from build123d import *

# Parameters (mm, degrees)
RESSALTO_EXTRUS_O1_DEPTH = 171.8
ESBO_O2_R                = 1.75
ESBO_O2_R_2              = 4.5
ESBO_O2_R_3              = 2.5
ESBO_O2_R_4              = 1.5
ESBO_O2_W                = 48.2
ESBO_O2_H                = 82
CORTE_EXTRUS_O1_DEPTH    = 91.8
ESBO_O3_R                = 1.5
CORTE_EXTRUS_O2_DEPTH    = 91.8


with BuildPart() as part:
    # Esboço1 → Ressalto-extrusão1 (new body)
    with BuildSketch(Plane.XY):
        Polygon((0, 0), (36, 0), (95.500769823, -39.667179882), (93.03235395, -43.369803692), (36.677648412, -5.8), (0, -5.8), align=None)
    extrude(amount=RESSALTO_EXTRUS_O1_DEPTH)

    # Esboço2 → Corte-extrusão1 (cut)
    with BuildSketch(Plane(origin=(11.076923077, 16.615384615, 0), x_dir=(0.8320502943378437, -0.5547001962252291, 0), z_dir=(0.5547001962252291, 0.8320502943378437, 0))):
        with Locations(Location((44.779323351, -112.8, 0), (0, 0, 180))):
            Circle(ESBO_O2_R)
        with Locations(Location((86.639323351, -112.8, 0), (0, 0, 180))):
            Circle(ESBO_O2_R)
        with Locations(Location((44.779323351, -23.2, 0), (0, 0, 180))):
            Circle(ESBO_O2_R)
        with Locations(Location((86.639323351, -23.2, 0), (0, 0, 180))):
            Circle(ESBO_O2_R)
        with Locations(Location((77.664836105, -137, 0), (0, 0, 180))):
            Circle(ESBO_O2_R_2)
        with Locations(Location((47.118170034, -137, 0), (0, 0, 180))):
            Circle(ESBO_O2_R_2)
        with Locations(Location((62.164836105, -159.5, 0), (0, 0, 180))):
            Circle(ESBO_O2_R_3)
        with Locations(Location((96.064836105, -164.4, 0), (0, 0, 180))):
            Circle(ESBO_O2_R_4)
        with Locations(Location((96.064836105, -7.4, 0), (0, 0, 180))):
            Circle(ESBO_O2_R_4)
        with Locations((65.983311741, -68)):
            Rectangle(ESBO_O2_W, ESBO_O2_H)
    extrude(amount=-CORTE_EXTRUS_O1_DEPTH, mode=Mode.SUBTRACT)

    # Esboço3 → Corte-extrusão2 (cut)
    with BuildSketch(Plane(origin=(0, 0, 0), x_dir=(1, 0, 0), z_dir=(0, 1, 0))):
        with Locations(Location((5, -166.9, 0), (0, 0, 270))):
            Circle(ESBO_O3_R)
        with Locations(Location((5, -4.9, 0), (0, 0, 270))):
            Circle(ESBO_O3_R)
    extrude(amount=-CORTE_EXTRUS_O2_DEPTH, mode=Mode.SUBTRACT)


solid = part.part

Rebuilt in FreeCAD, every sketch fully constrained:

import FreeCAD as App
import Part
import Sketcher
from FreeCAD import Vector
Q = App.Units.Quantity

doc = App.newDocument("Part")
body = doc.addObject("PartDesign::Body", "Body")

# Sketch on XY plane
sketch1 = doc.addObject("Sketcher::SketchObject", "Sketch")
body.addObject(sketch1)
sketch1.AttachmentSupport = (doc.XY_Plane, [""])
sketch1.MapMode = "FlatFace"
sketch1.addGeometry(Part.LineSegment(Vector(36, 0, 0), Vector(0, 0, 0)), False)
sketch1.addGeometry(Part.LineSegment(Vector(0, 0, 0), Vector(0, -5.8, 0)), False)
sketch1.addGeometry(Part.LineSegment(Vector(0, -5.8, 0), Vector(36.7, -5.8, 0)), False)
sketch1.addGeometry(Part.LineSegment(Vector(36.7, -5.8, 0), Vector(93, -43.4, 0)), False)
sketch1.addGeometry(Part.LineSegment(Vector(93, -43.4, 0), Vector(95.5, -39.7, 0)), False)
sketch1.addGeometry(Part.LineSegment(Vector(95.5, -39.7, 0), Vector(36, 0, 0)), False)
sketch1.addConstraint(Sketcher.Constraint("Coincident", 0, 2, 1, 1))
sketch1.addConstraint(Sketcher.Constraint("Coincident", 1, 2, 2, 1))
sketch1.addConstraint(Sketcher.Constraint("Coincident", 2, 2, 3, 1))
sketch1.addConstraint(Sketcher.Constraint("Coincident", 3, 2, 4, 1))
sketch1.addConstraint(Sketcher.Constraint("Coincident", 4, 2, 5, 1))
sketch1.addConstraint(Sketcher.Constraint("Coincident", 5, 2, 0, 1))
sketch1.addConstraint(Sketcher.Constraint("Horizontal", 0))
sketch1.addConstraint(Sketcher.Constraint("Vertical", 1))
sketch1.addConstraint(Sketcher.Constraint("Horizontal", 2))
sketch1.addConstraint(Sketcher.Constraint("Coincident", 0, 2, -1, 1))
sketch1.addConstraint(Sketcher.Constraint("Perpendicular", 3, 4))
sketch1.addConstraint(Sketcher.Constraint("Perpendicular", 4, 5))
sketch1.addConstraint(Sketcher.Constraint("DistanceX", 0, 2, 0, 1, Q("36 mm")))
sketch1.addConstraint(Sketcher.Constraint("DistanceY", 1, 2, 1, 1, Q("5.8 mm")))
sketch1.addConstraint(Sketcher.Constraint("Distance", 4, Q("4.45 mm")))
sketch1.addConstraint(Sketcher.Constraint("DistanceX", 2, 1, 2, 2, Q("36.677648 mm")))
sketch1.addConstraint(Sketcher.Constraint("DistanceX", -1, 1, 4, 2, Q("95.50077 mm")))
pad1 = doc.addObject("PartDesign::Pad", "Pad")
body.addObject(pad1)
pad1.Profile = sketch1
pad1.Length = 171.8

# Sketch on an angled plane
sketch2 = doc.addObject("Sketcher::SketchObject", "Sketch001")
body.addObject(sketch2)
sketch2.Placement = App.Placement(Vector(11.076923, 16.615385, 0), App.Rotation(Vector(0.832050294, -0.554700196, 0), Vector(0, 0, -0.999999999), Vector(0.554700196, 0.832050294, 0), "ZXY"))
sketch2.addGeometry(Part.Circle(Vector(44.8, -112.8, 0), Vector(0, 0, 1), 1.8), False)
sketch2.addGeometry(Part.Circle(Vector(86.6, -112.8, 0), Vector(0, 0, 1), 1.8), False)
sketch2.addGeometry(Part.Circle(Vector(44.8, -23.2, 0), Vector(0, 0, 1), 1.8), False)
sketch2.addGeometry(Part.Circle(Vector(86.6, -23.2, 0), Vector(0, 0, 1), 1.8), False)
sketch2.addGeometry(Part.Circle(Vector(77.7, -137, 0), Vector(0, 0, 1), 4.5), False)
sketch2.addGeometry(Part.Circle(Vector(47.1, -137, 0), Vector(0, 0, 1), 4.5), False)
sketch2.addGeometry(Part.Circle(Vector(62.2, -159.5, 0), Vector(0, 0, 1), 2.5), False)
sketch2.addGeometry(Part.Circle(Vector(96.1, -164.4, 0), Vector(0, 0, 1), 1.5), False)
sketch2.addGeometry(Part.Circle(Vector(96.1, -7.4, 0), Vector(0, 0, 1), 1.5), False)
sketch2.addGeometry(Part.LineSegment(Vector(41.9, -27, 0), Vector(41.9, -109, 0)), False)
sketch2.addGeometry(Part.LineSegment(Vector(41.9, -109, 0), Vector(90.1, -109, 0)), False)
sketch2.addGeometry(Part.LineSegment(Vector(90.1, -109, 0), Vector(90.1, -27, 0)), False)
sketch2.addGeometry(Part.LineSegment(Vector(90.1, -27, 0), Vector(41.9, -27, 0)), False)
sketch2.addConstraint(Sketcher.Constraint("Coincident", 9, 2, 10, 1))
sketch2.addConstraint(Sketcher.Constraint("Coincident", 10, 2, 11, 1))
sketch2.addConstraint(Sketcher.Constraint("Coincident", 11, 2, 12, 1))
sketch2.addConstraint(Sketcher.Constraint("Coincident", 12, 2, 9, 1))
sketch2.addConstraint(Sketcher.Constraint("Vertical", 9))
sketch2.addConstraint(Sketcher.Constraint("Horizontal", 10))
sketch2.addConstraint(Sketcher.Constraint("Vertical", 11))
sketch2.addConstraint(Sketcher.Constraint("Horizontal", 12))
sketch2.addConstraint(Sketcher.Constraint("Equal", 0, 1))
sketch2.addConstraint(Sketcher.Constraint("Equal", 1, 2))
sketch2.addConstraint(Sketcher.Constraint("Equal", 2, 3))
sketch2.addConstraint(Sketcher.Constraint("Equal", 4, 5))
sketch2.addConstraint(Sketcher.Constraint("Equal", 7, 8))
sketch2.addConstraint(Sketcher.Constraint("Horizontal", 0, 3, 1, 3))
sketch2.addConstraint(Sketcher.Constraint("Horizontal", 2, 3, 3, 3))
sketch2.addConstraint(Sketcher.Constraint("Horizontal", 4, 3, 5, 3))
sketch2.addConstraint(Sketcher.Constraint("Vertical", 0, 3, 2, 3))
sketch2.addConstraint(Sketcher.Constraint("Vertical", 1, 3, 3, 3))
sketch2.addConstraint(Sketcher.Constraint("Vertical", 7, 3, 8, 3))
sketch2.addConstraint(Sketcher.Constraint("Diameter", 4, Q("9 mm")))
sketch2.addConstraint(Sketcher.Constraint("Diameter", 6, Q("5 mm")))
sketch2.addConstraint(Sketcher.Constraint("Diameter", 7, Q("3 mm")))
sketch2.addConstraint(Sketcher.Constraint("Diameter", 0, Q("3.5 mm")))
sketch2.addConstraint(Sketcher.Constraint("DistanceY", 9, 2, 9, 1, Q("82 mm")))
sketch2.addConstraint(Sketcher.Constraint("DistanceX", 10, 1, 10, 2, Q("48.2 mm")))
sketch2.addConstraint(Sketcher.Constraint("DistanceY", 4, 3, -1, 1, Q("137 mm")))
sketch2.addConstraint(Sketcher.Constraint("DistanceY", 9, 2, -1, 1, Q("109 mm")))
sketch2.addConstraint(Sketcher.Constraint("DistanceY", 0, 3, -1, 1, Q("112.8 mm")))
sketch2.addConstraint(Sketcher.Constraint("DistanceY", 2, 3, -1, 1, Q("23.2 mm")))
sketch2.addConstraint(Sketcher.Constraint("DistanceY", 6, 3, -1, 1, Q("159.5 mm")))
sketch2.addConstraint(Sketcher.Constraint("DistanceY", 7, 3, -1, 1, Q("164.4 mm")))
sketch2.addConstraint(Sketcher.Constraint("DistanceY", 8, 3, -1, 1, Q("7.4 mm")))
sketch2.addConstraint(Sketcher.Constraint("DistanceX", 6, 3, 4, 3, Q("15.5 mm")))
sketch2.addConstraint(Sketcher.Constraint("DistanceX", 4, 3, 7, 3, Q("18.4 mm")))
sketch2.addConstraint(Sketcher.Constraint("DistanceX", 0, 3, 1, 3, Q("41.86 mm")))
sketch2.addConstraint(Sketcher.Constraint("DistanceX", -1, 1, 5, 3, Q("47.11817 mm")))
sketch2.addConstraint(Sketcher.Constraint("DistanceX", -1, 1, 9, 2, Q("41.883312 mm")))
sketch2.addConstraint(Sketcher.Constraint("DistanceX", 9, 2, 0, 3, Q("2.896012 mm")))
sketch2.addConstraint(Sketcher.Constraint("DistanceX", -1, 1, 4, 3, Q("77.664836 mm")))
pocket1 = doc.addObject("PartDesign::Pocket", "Pocket")
body.addObject(pocket1)
pocket1.Profile = sketch2
pocket1.Length = 91.8

# Sketch on XZ plane
sketch3 = doc.addObject("Sketcher::SketchObject", "Sketch002")
body.addObject(sketch3)
sketch3.AttachmentSupport = (doc.XZ_Plane, [""])
sketch3.MapMode = "FlatFace"
sketch3.addGeometry(Part.Circle(Vector(5, 166.9, 0), Vector(0, 0, 1), 1.5), False)
sketch3.addGeometry(Part.Circle(Vector(5, 4.9, 0), Vector(0, 0, 1), 1.5), False)
sketch3.addConstraint(Sketcher.Constraint("Equal", 0, 1))
sketch3.addConstraint(Sketcher.Constraint("Vertical", 0, 3, 1, 3))
sketch3.addConstraint(Sketcher.Constraint("Diameter", 0, Q("3 mm")))
sketch3.addConstraint(Sketcher.Constraint("DistanceX", -1, 1, 0, 3, Q("5 mm")))
sketch3.addConstraint(Sketcher.Constraint("DistanceY", 1, 3, 0, 3, Q("162 mm")))
sketch3.addConstraint(Sketcher.Constraint("DistanceY", -1, 1, 0, 3, Q("166.9 mm")))
pocket2 = doc.addObject("PartDesign::Pocket", "Pocket001")
body.addObject(pocket2)
pocket2.Profile = sketch3
pocket2.Length = 91.8
pocket2.Reversed = True

doc.recompute()
